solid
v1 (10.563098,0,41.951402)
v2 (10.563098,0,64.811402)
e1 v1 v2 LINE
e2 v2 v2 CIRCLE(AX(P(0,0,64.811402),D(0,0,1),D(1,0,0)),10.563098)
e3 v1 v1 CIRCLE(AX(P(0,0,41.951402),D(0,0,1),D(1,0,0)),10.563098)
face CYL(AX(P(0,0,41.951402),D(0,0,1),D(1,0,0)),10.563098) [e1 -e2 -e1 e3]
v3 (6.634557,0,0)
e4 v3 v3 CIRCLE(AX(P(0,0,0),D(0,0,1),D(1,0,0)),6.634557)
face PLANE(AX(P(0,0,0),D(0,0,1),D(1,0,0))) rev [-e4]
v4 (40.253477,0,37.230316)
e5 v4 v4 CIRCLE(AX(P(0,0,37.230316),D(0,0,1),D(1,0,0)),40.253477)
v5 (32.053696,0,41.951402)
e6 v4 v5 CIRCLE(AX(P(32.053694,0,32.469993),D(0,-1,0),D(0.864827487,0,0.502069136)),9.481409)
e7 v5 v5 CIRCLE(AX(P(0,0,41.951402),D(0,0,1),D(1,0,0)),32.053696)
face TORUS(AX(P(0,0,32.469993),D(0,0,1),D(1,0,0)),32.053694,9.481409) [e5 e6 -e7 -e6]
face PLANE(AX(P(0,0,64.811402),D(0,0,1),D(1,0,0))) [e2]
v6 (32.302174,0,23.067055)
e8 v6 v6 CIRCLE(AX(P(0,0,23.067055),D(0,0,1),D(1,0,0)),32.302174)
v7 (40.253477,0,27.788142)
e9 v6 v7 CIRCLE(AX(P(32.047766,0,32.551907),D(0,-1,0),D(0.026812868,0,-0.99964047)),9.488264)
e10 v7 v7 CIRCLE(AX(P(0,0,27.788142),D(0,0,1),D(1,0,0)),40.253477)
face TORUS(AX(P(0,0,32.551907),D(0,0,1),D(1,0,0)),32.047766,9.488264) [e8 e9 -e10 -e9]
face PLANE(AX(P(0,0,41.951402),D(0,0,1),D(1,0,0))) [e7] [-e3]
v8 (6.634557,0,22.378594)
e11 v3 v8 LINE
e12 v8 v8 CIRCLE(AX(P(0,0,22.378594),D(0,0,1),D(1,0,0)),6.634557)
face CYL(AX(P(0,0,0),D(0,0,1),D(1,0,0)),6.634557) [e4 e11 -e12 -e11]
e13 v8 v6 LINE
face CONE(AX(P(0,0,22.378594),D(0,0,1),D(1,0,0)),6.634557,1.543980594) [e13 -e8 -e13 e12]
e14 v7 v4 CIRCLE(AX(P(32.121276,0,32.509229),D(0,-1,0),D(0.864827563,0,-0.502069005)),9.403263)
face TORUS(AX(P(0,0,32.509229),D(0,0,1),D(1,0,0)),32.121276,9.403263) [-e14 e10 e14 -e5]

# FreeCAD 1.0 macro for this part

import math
import FreeCAD as App
import Part
import Sketcher
from FreeCAD import Vector
Q = App.Units.Quantity

doc = App.newDocument("Part")
body = doc.addObject("PartDesign::Body", "Body")

# Sketch on XZ plane
sketch1 = doc.addObject("Sketcher::SketchObject", "Sketch")
body.addObject(sketch1)
sketch1.AttachmentSupport = (doc.XZ_Plane, [""])
sketch1.MapMode = "FlatFace"
sketch1.addGeometry(Part.LineSegment(Vector(10.563098, 64.811402, 0), Vector(0, 64.811402, 0)), False)
sketch1.addGeometry(Part.LineSegment(Vector(0, 64.811402, 0), Vector(0, 0, 0)), False)
sketch1.addGeometry(Part.LineSegment(Vector(0, 0, 0), Vector(6.634557, 0, 0)), False)
sketch1.addGeometry(Part.LineSegment(Vector(6.634557, 0, 0), Vector(6.634557, 22.378594, 0)), False)
sketch1.addGeometry(Part.LineSegment(Vector(6.634557, 22.378594, 0), Vector(32.302174, 23.067055, 0)), False)
sketch1.addGeometry(Part.ArcOfCircle(Part.Circle(Vector(32.047766, 32.551907, 0), Vector(0, 0, 1), 9.488264), math.radians(-88.463552), math.radians(-30.136994)), False)
sketch1.addGeometry(Part.ArcOfCircle(Part.Circle(Vector(32.121276, 32.509229, 0), Vector(0, 0, 1), 9.403263), math.radians(-30.136979), math.radians(30.136979)), False)
sketch1.addGeometry(Part.ArcOfCircle(Part.Circle(Vector(32.053694, 32.469993, 0), Vector(0, 0, 1), 9.481409), math.radians(30.136988), math.radians(89.999989)), False)
sketch1.addGeometry(Part.LineSegment(Vector(32.053696, 41.951402, 0), Vector(10.563098, 41.951402, 0)), False)
sketch1.addGeometry(Part.LineSegment(Vector(10.563098, 41.951402, 0), Vector(10.563098, 64.811402, 0)), False)
sketch1.addConstraint(Sketcher.Constraint("Coincident", 0, 2, 1, 1))
sketch1.addConstraint(Sketcher.Constraint("Coincident", 1, 2, 2, 1))
sketch1.addConstraint(Sketcher.Constraint("Coincident", 2, 2, 3, 1))
sketch1.addConstraint(Sketcher.Constraint("Coincident", 3, 2, 4, 1))
sketch1.addConstraint(Sketcher.Constraint("Coincident", 4, 2, 5, 1))
sketch1.addConstraint(Sketcher.Constraint("Coincident", 5, 2, 6, 1))
sketch1.addConstraint(Sketcher.Constraint("Coincident", 6, 2, 7, 1))
sketch1.addConstraint(Sketcher.Constraint("Coincident", 7, 2, 8, 1))
sketch1.addConstraint(Sketcher.Constraint("Coincident", 8, 2, 9, 1))
sketch1.addConstraint(Sketcher.Constraint("Coincident", 9, 2, 0, 1))
sketch1.addConstraint(Sketcher.Constraint("Horizontal", 0))
sketch1.addConstraint(Sketcher.Constraint("Vertical", 1))
sketch1.addConstraint(Sketcher.Constraint("Horizontal", 2))
sketch1.addConstraint(Sketcher.Constraint("Vertical", 3))
sketch1.addConstraint(Sketcher.Constraint("Horizontal", 8))
sketch1.addConstraint(Sketcher.Constraint("Vertical", 9))
sketch1.addConstraint(Sketcher.Constraint("Coincident", 1, 2, -1, 1))
sketch1.addConstraint(Sketcher.Constraint("DistanceY", 9, 1, 9, 2, Q("0.9 in")))
sketch1.addConstraint(Sketcher.Constraint("Radius", 7, Q("9.481409 mm")))
sketch1.addConstraint(Sketcher.Constraint("DistanceX", 8, 2, 8, 1, Q("21.490598 mm")))
sketch1.addConstraint(Sketcher.Constraint("DistanceY", 1, 2, 1, 1, Q("64.811402 mm")))
sketch1.addConstraint(Sketcher.Constraint("Radius", 5, Q("9.488264 mm")))
sketch1.addConstraint(Sketcher.Constraint("Radius", 6, Q("9.403263 mm")))
sketch1.addConstraint(Sketcher.Constraint("DistanceY", 3, 2, 7, 3, Q("10.091399 mm")))
sketch1.addConstraint(Sketcher.Constraint("DistanceX", 6, 3, 4, 2, Q("0.180898 mm")))
sketch1.addConstraint(Sketcher.Constraint("DistanceX", 6, 3, 5, 2, Q("8.132201 mm")))
sketch1.addConstraint(Sketcher.Constraint("DistanceX", 6, 3, 6, 2, Q("8.132201 mm")))
sketch1.addConstraint(Sketcher.Constraint("Distance", 4, Q("25.676848 mm")))
sketch1.addConstraint(Sketcher.Constraint("DistanceX", 0, 2, 0, 1, Q("10.563098 mm")))
sketch1.addConstraint(Sketcher.Constraint("DistanceX", 2, 1, 2, 2, Q("6.634557 mm")))
sketch1.addConstraint(Sketcher.Constraint("DistanceY", -1, 1, 6, 3, Q("32.509229 mm")))
sketch1.addConstraint(Sketcher.Constraint("DistanceX", 5, 3, 6, 3, Q("0.073509 mm")))
revolution = doc.addObject("PartDesign::Revolution", "Revolution")
body.addObject(revolution)
revolution.Profile = sketch1
revolution.ReferenceAxis = (sketch1, ["V_Axis"])
revolution.Angle = 360

doc.recompute()
